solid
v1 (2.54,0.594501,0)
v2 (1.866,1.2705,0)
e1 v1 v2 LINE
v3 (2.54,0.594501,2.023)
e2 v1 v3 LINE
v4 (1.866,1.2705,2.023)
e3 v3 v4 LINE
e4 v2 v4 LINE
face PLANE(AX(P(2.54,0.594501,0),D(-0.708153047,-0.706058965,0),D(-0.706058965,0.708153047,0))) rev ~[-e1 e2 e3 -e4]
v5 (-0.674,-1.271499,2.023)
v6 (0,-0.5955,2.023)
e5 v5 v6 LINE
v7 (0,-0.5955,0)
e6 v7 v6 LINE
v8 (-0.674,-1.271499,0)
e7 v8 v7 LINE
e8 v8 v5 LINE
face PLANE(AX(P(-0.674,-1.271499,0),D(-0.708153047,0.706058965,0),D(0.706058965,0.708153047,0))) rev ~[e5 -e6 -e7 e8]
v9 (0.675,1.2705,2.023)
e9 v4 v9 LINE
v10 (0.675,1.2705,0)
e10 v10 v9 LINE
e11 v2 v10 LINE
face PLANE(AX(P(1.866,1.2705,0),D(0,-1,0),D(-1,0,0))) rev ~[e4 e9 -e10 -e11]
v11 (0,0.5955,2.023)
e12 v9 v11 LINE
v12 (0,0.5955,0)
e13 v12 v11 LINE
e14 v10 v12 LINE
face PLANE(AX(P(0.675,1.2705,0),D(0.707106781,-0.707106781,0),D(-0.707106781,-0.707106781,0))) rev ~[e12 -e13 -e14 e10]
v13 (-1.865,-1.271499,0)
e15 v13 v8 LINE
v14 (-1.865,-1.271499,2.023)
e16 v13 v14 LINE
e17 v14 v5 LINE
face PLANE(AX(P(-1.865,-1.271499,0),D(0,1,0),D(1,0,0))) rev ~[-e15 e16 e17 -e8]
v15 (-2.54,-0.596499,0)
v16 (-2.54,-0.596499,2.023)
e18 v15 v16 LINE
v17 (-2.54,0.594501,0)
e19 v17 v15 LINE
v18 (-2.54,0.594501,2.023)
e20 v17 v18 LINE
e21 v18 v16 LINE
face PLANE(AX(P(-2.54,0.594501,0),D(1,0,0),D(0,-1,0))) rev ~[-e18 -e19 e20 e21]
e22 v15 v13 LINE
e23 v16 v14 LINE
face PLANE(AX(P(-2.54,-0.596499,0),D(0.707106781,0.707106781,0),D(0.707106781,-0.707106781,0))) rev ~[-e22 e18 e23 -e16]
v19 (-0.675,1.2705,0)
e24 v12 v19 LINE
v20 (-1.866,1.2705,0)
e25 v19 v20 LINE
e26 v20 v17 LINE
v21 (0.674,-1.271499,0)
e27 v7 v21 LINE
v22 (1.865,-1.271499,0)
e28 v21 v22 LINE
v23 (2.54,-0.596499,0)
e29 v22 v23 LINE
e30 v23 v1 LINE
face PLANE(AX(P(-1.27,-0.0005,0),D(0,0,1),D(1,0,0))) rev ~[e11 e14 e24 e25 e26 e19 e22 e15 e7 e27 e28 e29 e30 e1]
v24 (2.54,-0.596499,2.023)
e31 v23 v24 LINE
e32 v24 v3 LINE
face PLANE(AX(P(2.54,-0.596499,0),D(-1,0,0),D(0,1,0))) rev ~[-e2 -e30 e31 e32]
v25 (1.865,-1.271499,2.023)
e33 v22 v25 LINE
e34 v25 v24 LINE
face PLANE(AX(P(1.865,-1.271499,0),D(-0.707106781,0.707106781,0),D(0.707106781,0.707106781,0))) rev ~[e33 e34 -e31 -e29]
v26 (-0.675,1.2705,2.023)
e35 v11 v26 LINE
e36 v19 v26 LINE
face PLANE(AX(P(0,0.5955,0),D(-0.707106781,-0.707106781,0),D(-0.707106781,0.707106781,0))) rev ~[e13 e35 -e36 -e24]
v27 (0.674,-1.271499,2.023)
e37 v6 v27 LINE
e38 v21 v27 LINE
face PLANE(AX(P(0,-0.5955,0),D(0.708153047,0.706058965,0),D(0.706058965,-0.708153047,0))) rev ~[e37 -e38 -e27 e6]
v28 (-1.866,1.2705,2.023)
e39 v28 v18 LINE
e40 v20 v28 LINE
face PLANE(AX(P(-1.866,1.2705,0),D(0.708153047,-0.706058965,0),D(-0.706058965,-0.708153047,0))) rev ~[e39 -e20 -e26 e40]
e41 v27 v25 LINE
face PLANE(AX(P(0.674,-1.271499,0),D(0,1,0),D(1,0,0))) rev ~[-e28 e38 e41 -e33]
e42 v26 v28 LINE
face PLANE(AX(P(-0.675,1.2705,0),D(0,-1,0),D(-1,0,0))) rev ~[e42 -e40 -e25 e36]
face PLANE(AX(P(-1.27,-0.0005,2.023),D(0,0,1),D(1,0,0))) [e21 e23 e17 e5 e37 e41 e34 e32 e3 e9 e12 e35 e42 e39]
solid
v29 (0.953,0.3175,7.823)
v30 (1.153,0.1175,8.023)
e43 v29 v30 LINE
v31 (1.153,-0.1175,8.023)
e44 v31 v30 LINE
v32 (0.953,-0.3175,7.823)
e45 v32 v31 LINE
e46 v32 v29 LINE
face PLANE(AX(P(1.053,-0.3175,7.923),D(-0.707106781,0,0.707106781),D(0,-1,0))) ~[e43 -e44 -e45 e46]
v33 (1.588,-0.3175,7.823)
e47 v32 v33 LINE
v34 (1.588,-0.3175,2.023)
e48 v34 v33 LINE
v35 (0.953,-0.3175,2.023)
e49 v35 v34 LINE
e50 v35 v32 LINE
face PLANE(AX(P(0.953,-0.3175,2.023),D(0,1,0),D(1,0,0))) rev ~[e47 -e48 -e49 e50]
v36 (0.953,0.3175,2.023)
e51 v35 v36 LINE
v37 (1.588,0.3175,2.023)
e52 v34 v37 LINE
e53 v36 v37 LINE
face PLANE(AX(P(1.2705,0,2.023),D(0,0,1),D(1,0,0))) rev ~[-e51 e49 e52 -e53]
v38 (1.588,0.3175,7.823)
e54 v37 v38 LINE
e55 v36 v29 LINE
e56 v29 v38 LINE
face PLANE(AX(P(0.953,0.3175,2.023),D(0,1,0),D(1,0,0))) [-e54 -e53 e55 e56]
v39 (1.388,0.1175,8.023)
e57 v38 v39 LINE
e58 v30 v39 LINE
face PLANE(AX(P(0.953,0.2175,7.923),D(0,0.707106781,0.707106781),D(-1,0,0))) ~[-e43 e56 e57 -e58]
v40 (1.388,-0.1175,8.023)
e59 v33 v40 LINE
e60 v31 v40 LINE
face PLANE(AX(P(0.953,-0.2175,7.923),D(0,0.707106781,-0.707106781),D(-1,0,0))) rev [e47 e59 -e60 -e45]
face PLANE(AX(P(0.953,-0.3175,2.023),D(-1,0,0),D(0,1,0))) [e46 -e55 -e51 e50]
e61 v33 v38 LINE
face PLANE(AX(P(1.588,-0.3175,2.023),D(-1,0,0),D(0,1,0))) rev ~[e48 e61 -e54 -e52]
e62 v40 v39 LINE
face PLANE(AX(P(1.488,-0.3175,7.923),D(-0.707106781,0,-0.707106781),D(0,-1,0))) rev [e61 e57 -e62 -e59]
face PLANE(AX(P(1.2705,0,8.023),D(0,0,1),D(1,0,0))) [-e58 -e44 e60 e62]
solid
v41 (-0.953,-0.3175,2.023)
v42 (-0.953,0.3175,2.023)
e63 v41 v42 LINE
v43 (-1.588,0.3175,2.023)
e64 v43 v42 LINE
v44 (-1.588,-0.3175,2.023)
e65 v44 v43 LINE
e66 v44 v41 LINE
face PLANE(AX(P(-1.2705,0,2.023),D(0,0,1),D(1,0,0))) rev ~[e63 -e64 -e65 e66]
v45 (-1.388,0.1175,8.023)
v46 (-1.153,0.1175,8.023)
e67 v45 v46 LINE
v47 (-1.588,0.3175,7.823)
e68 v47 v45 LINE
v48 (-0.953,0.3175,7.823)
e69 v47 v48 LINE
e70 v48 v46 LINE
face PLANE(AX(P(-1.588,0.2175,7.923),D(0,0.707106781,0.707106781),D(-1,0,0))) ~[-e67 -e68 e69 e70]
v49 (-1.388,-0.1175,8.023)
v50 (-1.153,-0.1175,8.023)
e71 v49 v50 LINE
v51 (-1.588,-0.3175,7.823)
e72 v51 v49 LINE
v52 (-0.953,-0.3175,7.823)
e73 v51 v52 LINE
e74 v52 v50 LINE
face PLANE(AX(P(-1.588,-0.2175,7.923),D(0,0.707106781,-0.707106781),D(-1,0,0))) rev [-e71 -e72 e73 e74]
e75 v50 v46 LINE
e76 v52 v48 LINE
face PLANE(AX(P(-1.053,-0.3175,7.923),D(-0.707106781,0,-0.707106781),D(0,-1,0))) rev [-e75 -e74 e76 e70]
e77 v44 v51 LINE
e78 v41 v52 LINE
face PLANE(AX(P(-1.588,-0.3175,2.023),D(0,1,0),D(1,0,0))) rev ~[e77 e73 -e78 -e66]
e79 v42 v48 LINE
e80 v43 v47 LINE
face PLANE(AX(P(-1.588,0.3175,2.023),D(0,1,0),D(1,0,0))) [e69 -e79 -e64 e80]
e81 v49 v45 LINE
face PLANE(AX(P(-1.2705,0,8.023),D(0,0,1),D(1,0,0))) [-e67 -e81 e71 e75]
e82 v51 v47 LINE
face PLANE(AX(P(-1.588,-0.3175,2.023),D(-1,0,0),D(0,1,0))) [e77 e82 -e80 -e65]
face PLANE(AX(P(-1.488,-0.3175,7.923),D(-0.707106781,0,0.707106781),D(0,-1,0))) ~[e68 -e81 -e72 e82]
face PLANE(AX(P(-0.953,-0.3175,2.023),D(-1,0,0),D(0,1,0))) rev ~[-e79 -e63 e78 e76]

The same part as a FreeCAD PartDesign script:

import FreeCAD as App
import Part
import Sketcher


def edges_at(feature, points):
    """Names of the edges that pass closest to the given points."""
    edges = feature.Shape.Edges
    near = lambda p: min(range(len(edges)), key=lambda i: edges[i].distToShape(Part.Vertex(*p))[0])
    return sorted({f"Edge{near(p) + 1}" for p in points})

doc = App.newDocument("Part")
body = doc.addObject("PartDesign::Body", "Body")

# Sketch on XY plane
sketch1 = body.newObject("Sketcher::SketchObject", "Sketch")
sketch1.AttachmentSupport = (doc.getObject("XY_Plane"), [""])
sketch1.MapMode = "FlatFace"
sketch1.addGeometry([
    Part.LineSegment(App.Vector(-0.675, 1.2705, 0), App.Vector(-1.866, 1.2705, 0)),  # 0
    Part.LineSegment(App.Vector(-1.866, 1.2705, 0), App.Vector(-2.54, 0.594501, 0)),  # 1
    Part.LineSegment(App.Vector(-2.54, 0.594501, 0), App.Vector(-2.54, -0.596499, 0)),  # 2
    Part.LineSegment(App.Vector(-2.54, -0.596499, 0), App.Vector(-1.865, -1.271499, 0)),  # 3
    Part.LineSegment(App.Vector(-1.865, -1.271499, 0), App.Vector(-0.674, -1.271499, 0)),  # 4
    Part.LineSegment(App.Vector(-0.674, -1.271499, 0), App.Vector(0, -0.5955, 0)),  # 5
    Part.LineSegment(App.Vector(0, -0.5955, 0), App.Vector(0.674, -1.271499, 0)),  # 6
    Part.LineSegment(App.Vector(0.674, -1.271499, 0), App.Vector(1.865, -1.271499, 0)),  # 7
    Part.LineSegment(App.Vector(1.865, -1.271499, 0), App.Vector(2.54, -0.596499, 0)),  # 8
    Part.LineSegment(App.Vector(2.54, -0.596499, 0), App.Vector(2.54, 0.594501, 0)),  # 9
    Part.LineSegment(App.Vector(2.54, 0.594501, 0), App.Vector(1.866, 1.2705, 0)),  # 10
    Part.LineSegment(App.Vector(1.866, 1.2705, 0), App.Vector(0.675, 1.2705, 0)),  # 11
    Part.LineSegment(App.Vector(0.675, 1.2705, 0), App.Vector(0, 0.5955, 0)),  # 12
    Part.LineSegment(App.Vector(0, 0.5955, 0), App.Vector(-0.675, 1.2705, 0)),  # 13
], False)
sketch1.addConstraint([
    Sketcher.Constraint("Coincident", 0, 2, 1, 1),
    Sketcher.Constraint("Coincident", 1, 2, 2, 1),
    Sketcher.Constraint("Coincident", 2, 2, 3, 1),
    Sketcher.Constraint("Coincident", 3, 2, 4, 1),
    Sketcher.Constraint("Coincident", 4, 2, 5, 1),
    Sketcher.Constraint("Coincident", 5, 2, 6, 1),
    Sketcher.Constraint("Coincident", 6, 2, 7, 1),
    Sketcher.Constraint("Coincident", 7, 2, 8, 1),
    Sketcher.Constraint("Coincident", 8, 2, 9, 1),
    Sketcher.Constraint("Coincident", 9, 2, 10, 1),
    Sketcher.Constraint("Coincident", 10, 2, 11, 1),
    Sketcher.Constraint("Coincident", 11, 2, 12, 1),
    Sketcher.Constraint("Coincident", 12, 2, 13, 1),
    Sketcher.Constraint("Coincident", 13, 2, 0, 1),
    Sketcher.Constraint("Horizontal", 0),
    Sketcher.Constraint("Vertical", 2),
    Sketcher.Constraint("Horizontal", 4),
    Sketcher.Constraint("Horizontal", 7),
    Sketcher.Constraint("Vertical", 9),
    Sketcher.Constraint("Horizontal", 11),
    Sketcher.Constraint("Symmetric", 5, 2, 12, 2, -1, 1),
    Sketcher.Constraint("Symmetric", 4, 2, 6, 2, -2),
    Sketcher.Constraint("Symmetric", 2, 2, 8, 2, -2),
    Sketcher.Constraint("Symmetric", 0, 2, 10, 2, -2),
    Sketcher.Constraint("PointOnObject", 5, 2, -2),
    Sketcher.Constraint("Parallel", 1, 5),
    Sketcher.Constraint("Perpendicular", 3, 8),
    Sketcher.Constraint("Parallel", 6, 10),
    Sketcher.Constraint("Parallel", 8, 12),
    Sketcher.Constraint("Perpendicular", 12, 13),
    Sketcher.Constraint("Equal", 0, 4),
    Sketcher.Constraint("Equal", 4, 7),
    Sketcher.Constraint("Equal", 11, 2),
    Sketcher.Constraint("Equal", 1, 3),
    Sketcher.Constraint("Equal", 3, 5),
    Sketcher.Constraint("DistanceX", 0, 2, 0, 1, 1.191),
    Sketcher.Constraint("DistanceX", 1, 2, -1, 1, 2.54),
    Sketcher.Constraint("DistanceY", 5, 2, 1, 2, 1.190001),
])
pad1 = body.newObject("PartDesign::Pad", "Pad")
pad1.Profile = sketch1
pad1.Length = 2.023
body2 = doc.addObject("PartDesign::Body", "Body001")
body2.AllowCompound = True

# Sketch on XY plane
sketch2 = body2.newObject("Sketcher::SketchObject", "Sketch001")
sketch2.AttachmentSupport = (doc.getObject("XY_Plane001"), [""])
sketch2.MapMode = "FlatFace"
sketch2.AttachmentOffset = App.Placement(App.Vector(0, 0, 2.023), App.Rotation())
sketch2.addGeometry([
    Part.LineSegment(App.Vector(-1.588, 0.3175, 0), App.Vector(-1.588, -0.3175, 0)),  # 0
    Part.LineSegment(App.Vector(-1.588, -0.3175, 0), App.Vector(-0.953, -0.3175, 0)),  # 1
    Part.LineSegment(App.Vector(-0.953, -0.3175, 0), App.Vector(-0.953, 0.3175, 0)),  # 2
    Part.LineSegment(App.Vector(-0.953, 0.3175, 0), App.Vector(-1.588, 0.3175, 0)),  # 3
    Part.LineSegment(App.Vector(0.953, 0.3175, 0), App.Vector(0.953, -0.3175, 0)),  # 4
    Part.LineSegment(App.Vector(0.953, -0.3175, 0), App.Vector(1.588, -0.3175, 0)),  # 5
    Part.LineSegment(App.Vector(1.588, -0.3175, 0), App.Vector(1.588, 0.3175, 0)),  # 6
    Part.LineSegment(App.Vector(1.588, 0.3175, 0), App.Vector(0.953, 0.3175, 0)),  # 7
], False)
sketch2.addConstraint([
    Sketcher.Constraint("Coincident", 0, 2, 1, 1),
    Sketcher.Constraint("Coincident", 1, 2, 2, 1),
    Sketcher.Constraint("Coincident", 2, 2, 3, 1),
    Sketcher.Constraint("Coincident", 3, 2, 0, 1),
    Sketcher.Constraint("Coincident", 4, 2, 5, 1),
    Sketcher.Constraint("Coincident", 5, 2, 6, 1),
    Sketcher.Constraint("Coincident", 6, 2, 7, 1),
    Sketcher.Constraint("Coincident", 7, 2, 4, 1),
    Sketcher.Constraint("Vertical", 0),
    Sketcher.Constraint("Horizontal", 1),
    Sketcher.Constraint("Vertical", 2),
    Sketcher.Constraint("Horizontal", 3),
    Sketcher.Constraint("Vertical", 4),
    Sketcher.Constraint("Horizontal", 5),
    Sketcher.Constraint("Vertical", 6),
    Sketcher.Constraint("Horizontal", 7),
    Sketcher.Constraint("Symmetric", 2, 2, 4, 2, -1, 1),
    Sketcher.Constraint("Symmetric", 0, 2, 6, 2, -1, 1),
    Sketcher.Constraint("Horizontal", 1, 2, 4, 2),
    Sketcher.Constraint("Equal", 7, 0),
    Sketcher.Constraint("DistanceX", 1, 1, 1, 2, 0.635),
    Sketcher.Constraint("DistanceX", 0, 2, -1, 1, 1.588),
])
pad2 = body2.newObject("PartDesign::Pad", "Pad001")
pad2.Profile = sketch2
pad2.Length = 6
doc.recompute()

chamfer = body2.newObject("PartDesign::Chamfer", "Chamfer")
chamfer.Base = (pad2, edges_at(pad2, [
    (-1.27, 0.318, 8.023),
    (-1.588, 0, 8.023),
    (-1.27, -0.318, 8.023),
    (-0.953, 0, 8.023),
    (1.27, 0.318, 8.023),
    (0.953, 0, 8.023),
    (1.27, -0.318, 8.023),
    (1.588, 0, 8.023),
]))
chamfer.Size = 0.2

doc.recompute()
